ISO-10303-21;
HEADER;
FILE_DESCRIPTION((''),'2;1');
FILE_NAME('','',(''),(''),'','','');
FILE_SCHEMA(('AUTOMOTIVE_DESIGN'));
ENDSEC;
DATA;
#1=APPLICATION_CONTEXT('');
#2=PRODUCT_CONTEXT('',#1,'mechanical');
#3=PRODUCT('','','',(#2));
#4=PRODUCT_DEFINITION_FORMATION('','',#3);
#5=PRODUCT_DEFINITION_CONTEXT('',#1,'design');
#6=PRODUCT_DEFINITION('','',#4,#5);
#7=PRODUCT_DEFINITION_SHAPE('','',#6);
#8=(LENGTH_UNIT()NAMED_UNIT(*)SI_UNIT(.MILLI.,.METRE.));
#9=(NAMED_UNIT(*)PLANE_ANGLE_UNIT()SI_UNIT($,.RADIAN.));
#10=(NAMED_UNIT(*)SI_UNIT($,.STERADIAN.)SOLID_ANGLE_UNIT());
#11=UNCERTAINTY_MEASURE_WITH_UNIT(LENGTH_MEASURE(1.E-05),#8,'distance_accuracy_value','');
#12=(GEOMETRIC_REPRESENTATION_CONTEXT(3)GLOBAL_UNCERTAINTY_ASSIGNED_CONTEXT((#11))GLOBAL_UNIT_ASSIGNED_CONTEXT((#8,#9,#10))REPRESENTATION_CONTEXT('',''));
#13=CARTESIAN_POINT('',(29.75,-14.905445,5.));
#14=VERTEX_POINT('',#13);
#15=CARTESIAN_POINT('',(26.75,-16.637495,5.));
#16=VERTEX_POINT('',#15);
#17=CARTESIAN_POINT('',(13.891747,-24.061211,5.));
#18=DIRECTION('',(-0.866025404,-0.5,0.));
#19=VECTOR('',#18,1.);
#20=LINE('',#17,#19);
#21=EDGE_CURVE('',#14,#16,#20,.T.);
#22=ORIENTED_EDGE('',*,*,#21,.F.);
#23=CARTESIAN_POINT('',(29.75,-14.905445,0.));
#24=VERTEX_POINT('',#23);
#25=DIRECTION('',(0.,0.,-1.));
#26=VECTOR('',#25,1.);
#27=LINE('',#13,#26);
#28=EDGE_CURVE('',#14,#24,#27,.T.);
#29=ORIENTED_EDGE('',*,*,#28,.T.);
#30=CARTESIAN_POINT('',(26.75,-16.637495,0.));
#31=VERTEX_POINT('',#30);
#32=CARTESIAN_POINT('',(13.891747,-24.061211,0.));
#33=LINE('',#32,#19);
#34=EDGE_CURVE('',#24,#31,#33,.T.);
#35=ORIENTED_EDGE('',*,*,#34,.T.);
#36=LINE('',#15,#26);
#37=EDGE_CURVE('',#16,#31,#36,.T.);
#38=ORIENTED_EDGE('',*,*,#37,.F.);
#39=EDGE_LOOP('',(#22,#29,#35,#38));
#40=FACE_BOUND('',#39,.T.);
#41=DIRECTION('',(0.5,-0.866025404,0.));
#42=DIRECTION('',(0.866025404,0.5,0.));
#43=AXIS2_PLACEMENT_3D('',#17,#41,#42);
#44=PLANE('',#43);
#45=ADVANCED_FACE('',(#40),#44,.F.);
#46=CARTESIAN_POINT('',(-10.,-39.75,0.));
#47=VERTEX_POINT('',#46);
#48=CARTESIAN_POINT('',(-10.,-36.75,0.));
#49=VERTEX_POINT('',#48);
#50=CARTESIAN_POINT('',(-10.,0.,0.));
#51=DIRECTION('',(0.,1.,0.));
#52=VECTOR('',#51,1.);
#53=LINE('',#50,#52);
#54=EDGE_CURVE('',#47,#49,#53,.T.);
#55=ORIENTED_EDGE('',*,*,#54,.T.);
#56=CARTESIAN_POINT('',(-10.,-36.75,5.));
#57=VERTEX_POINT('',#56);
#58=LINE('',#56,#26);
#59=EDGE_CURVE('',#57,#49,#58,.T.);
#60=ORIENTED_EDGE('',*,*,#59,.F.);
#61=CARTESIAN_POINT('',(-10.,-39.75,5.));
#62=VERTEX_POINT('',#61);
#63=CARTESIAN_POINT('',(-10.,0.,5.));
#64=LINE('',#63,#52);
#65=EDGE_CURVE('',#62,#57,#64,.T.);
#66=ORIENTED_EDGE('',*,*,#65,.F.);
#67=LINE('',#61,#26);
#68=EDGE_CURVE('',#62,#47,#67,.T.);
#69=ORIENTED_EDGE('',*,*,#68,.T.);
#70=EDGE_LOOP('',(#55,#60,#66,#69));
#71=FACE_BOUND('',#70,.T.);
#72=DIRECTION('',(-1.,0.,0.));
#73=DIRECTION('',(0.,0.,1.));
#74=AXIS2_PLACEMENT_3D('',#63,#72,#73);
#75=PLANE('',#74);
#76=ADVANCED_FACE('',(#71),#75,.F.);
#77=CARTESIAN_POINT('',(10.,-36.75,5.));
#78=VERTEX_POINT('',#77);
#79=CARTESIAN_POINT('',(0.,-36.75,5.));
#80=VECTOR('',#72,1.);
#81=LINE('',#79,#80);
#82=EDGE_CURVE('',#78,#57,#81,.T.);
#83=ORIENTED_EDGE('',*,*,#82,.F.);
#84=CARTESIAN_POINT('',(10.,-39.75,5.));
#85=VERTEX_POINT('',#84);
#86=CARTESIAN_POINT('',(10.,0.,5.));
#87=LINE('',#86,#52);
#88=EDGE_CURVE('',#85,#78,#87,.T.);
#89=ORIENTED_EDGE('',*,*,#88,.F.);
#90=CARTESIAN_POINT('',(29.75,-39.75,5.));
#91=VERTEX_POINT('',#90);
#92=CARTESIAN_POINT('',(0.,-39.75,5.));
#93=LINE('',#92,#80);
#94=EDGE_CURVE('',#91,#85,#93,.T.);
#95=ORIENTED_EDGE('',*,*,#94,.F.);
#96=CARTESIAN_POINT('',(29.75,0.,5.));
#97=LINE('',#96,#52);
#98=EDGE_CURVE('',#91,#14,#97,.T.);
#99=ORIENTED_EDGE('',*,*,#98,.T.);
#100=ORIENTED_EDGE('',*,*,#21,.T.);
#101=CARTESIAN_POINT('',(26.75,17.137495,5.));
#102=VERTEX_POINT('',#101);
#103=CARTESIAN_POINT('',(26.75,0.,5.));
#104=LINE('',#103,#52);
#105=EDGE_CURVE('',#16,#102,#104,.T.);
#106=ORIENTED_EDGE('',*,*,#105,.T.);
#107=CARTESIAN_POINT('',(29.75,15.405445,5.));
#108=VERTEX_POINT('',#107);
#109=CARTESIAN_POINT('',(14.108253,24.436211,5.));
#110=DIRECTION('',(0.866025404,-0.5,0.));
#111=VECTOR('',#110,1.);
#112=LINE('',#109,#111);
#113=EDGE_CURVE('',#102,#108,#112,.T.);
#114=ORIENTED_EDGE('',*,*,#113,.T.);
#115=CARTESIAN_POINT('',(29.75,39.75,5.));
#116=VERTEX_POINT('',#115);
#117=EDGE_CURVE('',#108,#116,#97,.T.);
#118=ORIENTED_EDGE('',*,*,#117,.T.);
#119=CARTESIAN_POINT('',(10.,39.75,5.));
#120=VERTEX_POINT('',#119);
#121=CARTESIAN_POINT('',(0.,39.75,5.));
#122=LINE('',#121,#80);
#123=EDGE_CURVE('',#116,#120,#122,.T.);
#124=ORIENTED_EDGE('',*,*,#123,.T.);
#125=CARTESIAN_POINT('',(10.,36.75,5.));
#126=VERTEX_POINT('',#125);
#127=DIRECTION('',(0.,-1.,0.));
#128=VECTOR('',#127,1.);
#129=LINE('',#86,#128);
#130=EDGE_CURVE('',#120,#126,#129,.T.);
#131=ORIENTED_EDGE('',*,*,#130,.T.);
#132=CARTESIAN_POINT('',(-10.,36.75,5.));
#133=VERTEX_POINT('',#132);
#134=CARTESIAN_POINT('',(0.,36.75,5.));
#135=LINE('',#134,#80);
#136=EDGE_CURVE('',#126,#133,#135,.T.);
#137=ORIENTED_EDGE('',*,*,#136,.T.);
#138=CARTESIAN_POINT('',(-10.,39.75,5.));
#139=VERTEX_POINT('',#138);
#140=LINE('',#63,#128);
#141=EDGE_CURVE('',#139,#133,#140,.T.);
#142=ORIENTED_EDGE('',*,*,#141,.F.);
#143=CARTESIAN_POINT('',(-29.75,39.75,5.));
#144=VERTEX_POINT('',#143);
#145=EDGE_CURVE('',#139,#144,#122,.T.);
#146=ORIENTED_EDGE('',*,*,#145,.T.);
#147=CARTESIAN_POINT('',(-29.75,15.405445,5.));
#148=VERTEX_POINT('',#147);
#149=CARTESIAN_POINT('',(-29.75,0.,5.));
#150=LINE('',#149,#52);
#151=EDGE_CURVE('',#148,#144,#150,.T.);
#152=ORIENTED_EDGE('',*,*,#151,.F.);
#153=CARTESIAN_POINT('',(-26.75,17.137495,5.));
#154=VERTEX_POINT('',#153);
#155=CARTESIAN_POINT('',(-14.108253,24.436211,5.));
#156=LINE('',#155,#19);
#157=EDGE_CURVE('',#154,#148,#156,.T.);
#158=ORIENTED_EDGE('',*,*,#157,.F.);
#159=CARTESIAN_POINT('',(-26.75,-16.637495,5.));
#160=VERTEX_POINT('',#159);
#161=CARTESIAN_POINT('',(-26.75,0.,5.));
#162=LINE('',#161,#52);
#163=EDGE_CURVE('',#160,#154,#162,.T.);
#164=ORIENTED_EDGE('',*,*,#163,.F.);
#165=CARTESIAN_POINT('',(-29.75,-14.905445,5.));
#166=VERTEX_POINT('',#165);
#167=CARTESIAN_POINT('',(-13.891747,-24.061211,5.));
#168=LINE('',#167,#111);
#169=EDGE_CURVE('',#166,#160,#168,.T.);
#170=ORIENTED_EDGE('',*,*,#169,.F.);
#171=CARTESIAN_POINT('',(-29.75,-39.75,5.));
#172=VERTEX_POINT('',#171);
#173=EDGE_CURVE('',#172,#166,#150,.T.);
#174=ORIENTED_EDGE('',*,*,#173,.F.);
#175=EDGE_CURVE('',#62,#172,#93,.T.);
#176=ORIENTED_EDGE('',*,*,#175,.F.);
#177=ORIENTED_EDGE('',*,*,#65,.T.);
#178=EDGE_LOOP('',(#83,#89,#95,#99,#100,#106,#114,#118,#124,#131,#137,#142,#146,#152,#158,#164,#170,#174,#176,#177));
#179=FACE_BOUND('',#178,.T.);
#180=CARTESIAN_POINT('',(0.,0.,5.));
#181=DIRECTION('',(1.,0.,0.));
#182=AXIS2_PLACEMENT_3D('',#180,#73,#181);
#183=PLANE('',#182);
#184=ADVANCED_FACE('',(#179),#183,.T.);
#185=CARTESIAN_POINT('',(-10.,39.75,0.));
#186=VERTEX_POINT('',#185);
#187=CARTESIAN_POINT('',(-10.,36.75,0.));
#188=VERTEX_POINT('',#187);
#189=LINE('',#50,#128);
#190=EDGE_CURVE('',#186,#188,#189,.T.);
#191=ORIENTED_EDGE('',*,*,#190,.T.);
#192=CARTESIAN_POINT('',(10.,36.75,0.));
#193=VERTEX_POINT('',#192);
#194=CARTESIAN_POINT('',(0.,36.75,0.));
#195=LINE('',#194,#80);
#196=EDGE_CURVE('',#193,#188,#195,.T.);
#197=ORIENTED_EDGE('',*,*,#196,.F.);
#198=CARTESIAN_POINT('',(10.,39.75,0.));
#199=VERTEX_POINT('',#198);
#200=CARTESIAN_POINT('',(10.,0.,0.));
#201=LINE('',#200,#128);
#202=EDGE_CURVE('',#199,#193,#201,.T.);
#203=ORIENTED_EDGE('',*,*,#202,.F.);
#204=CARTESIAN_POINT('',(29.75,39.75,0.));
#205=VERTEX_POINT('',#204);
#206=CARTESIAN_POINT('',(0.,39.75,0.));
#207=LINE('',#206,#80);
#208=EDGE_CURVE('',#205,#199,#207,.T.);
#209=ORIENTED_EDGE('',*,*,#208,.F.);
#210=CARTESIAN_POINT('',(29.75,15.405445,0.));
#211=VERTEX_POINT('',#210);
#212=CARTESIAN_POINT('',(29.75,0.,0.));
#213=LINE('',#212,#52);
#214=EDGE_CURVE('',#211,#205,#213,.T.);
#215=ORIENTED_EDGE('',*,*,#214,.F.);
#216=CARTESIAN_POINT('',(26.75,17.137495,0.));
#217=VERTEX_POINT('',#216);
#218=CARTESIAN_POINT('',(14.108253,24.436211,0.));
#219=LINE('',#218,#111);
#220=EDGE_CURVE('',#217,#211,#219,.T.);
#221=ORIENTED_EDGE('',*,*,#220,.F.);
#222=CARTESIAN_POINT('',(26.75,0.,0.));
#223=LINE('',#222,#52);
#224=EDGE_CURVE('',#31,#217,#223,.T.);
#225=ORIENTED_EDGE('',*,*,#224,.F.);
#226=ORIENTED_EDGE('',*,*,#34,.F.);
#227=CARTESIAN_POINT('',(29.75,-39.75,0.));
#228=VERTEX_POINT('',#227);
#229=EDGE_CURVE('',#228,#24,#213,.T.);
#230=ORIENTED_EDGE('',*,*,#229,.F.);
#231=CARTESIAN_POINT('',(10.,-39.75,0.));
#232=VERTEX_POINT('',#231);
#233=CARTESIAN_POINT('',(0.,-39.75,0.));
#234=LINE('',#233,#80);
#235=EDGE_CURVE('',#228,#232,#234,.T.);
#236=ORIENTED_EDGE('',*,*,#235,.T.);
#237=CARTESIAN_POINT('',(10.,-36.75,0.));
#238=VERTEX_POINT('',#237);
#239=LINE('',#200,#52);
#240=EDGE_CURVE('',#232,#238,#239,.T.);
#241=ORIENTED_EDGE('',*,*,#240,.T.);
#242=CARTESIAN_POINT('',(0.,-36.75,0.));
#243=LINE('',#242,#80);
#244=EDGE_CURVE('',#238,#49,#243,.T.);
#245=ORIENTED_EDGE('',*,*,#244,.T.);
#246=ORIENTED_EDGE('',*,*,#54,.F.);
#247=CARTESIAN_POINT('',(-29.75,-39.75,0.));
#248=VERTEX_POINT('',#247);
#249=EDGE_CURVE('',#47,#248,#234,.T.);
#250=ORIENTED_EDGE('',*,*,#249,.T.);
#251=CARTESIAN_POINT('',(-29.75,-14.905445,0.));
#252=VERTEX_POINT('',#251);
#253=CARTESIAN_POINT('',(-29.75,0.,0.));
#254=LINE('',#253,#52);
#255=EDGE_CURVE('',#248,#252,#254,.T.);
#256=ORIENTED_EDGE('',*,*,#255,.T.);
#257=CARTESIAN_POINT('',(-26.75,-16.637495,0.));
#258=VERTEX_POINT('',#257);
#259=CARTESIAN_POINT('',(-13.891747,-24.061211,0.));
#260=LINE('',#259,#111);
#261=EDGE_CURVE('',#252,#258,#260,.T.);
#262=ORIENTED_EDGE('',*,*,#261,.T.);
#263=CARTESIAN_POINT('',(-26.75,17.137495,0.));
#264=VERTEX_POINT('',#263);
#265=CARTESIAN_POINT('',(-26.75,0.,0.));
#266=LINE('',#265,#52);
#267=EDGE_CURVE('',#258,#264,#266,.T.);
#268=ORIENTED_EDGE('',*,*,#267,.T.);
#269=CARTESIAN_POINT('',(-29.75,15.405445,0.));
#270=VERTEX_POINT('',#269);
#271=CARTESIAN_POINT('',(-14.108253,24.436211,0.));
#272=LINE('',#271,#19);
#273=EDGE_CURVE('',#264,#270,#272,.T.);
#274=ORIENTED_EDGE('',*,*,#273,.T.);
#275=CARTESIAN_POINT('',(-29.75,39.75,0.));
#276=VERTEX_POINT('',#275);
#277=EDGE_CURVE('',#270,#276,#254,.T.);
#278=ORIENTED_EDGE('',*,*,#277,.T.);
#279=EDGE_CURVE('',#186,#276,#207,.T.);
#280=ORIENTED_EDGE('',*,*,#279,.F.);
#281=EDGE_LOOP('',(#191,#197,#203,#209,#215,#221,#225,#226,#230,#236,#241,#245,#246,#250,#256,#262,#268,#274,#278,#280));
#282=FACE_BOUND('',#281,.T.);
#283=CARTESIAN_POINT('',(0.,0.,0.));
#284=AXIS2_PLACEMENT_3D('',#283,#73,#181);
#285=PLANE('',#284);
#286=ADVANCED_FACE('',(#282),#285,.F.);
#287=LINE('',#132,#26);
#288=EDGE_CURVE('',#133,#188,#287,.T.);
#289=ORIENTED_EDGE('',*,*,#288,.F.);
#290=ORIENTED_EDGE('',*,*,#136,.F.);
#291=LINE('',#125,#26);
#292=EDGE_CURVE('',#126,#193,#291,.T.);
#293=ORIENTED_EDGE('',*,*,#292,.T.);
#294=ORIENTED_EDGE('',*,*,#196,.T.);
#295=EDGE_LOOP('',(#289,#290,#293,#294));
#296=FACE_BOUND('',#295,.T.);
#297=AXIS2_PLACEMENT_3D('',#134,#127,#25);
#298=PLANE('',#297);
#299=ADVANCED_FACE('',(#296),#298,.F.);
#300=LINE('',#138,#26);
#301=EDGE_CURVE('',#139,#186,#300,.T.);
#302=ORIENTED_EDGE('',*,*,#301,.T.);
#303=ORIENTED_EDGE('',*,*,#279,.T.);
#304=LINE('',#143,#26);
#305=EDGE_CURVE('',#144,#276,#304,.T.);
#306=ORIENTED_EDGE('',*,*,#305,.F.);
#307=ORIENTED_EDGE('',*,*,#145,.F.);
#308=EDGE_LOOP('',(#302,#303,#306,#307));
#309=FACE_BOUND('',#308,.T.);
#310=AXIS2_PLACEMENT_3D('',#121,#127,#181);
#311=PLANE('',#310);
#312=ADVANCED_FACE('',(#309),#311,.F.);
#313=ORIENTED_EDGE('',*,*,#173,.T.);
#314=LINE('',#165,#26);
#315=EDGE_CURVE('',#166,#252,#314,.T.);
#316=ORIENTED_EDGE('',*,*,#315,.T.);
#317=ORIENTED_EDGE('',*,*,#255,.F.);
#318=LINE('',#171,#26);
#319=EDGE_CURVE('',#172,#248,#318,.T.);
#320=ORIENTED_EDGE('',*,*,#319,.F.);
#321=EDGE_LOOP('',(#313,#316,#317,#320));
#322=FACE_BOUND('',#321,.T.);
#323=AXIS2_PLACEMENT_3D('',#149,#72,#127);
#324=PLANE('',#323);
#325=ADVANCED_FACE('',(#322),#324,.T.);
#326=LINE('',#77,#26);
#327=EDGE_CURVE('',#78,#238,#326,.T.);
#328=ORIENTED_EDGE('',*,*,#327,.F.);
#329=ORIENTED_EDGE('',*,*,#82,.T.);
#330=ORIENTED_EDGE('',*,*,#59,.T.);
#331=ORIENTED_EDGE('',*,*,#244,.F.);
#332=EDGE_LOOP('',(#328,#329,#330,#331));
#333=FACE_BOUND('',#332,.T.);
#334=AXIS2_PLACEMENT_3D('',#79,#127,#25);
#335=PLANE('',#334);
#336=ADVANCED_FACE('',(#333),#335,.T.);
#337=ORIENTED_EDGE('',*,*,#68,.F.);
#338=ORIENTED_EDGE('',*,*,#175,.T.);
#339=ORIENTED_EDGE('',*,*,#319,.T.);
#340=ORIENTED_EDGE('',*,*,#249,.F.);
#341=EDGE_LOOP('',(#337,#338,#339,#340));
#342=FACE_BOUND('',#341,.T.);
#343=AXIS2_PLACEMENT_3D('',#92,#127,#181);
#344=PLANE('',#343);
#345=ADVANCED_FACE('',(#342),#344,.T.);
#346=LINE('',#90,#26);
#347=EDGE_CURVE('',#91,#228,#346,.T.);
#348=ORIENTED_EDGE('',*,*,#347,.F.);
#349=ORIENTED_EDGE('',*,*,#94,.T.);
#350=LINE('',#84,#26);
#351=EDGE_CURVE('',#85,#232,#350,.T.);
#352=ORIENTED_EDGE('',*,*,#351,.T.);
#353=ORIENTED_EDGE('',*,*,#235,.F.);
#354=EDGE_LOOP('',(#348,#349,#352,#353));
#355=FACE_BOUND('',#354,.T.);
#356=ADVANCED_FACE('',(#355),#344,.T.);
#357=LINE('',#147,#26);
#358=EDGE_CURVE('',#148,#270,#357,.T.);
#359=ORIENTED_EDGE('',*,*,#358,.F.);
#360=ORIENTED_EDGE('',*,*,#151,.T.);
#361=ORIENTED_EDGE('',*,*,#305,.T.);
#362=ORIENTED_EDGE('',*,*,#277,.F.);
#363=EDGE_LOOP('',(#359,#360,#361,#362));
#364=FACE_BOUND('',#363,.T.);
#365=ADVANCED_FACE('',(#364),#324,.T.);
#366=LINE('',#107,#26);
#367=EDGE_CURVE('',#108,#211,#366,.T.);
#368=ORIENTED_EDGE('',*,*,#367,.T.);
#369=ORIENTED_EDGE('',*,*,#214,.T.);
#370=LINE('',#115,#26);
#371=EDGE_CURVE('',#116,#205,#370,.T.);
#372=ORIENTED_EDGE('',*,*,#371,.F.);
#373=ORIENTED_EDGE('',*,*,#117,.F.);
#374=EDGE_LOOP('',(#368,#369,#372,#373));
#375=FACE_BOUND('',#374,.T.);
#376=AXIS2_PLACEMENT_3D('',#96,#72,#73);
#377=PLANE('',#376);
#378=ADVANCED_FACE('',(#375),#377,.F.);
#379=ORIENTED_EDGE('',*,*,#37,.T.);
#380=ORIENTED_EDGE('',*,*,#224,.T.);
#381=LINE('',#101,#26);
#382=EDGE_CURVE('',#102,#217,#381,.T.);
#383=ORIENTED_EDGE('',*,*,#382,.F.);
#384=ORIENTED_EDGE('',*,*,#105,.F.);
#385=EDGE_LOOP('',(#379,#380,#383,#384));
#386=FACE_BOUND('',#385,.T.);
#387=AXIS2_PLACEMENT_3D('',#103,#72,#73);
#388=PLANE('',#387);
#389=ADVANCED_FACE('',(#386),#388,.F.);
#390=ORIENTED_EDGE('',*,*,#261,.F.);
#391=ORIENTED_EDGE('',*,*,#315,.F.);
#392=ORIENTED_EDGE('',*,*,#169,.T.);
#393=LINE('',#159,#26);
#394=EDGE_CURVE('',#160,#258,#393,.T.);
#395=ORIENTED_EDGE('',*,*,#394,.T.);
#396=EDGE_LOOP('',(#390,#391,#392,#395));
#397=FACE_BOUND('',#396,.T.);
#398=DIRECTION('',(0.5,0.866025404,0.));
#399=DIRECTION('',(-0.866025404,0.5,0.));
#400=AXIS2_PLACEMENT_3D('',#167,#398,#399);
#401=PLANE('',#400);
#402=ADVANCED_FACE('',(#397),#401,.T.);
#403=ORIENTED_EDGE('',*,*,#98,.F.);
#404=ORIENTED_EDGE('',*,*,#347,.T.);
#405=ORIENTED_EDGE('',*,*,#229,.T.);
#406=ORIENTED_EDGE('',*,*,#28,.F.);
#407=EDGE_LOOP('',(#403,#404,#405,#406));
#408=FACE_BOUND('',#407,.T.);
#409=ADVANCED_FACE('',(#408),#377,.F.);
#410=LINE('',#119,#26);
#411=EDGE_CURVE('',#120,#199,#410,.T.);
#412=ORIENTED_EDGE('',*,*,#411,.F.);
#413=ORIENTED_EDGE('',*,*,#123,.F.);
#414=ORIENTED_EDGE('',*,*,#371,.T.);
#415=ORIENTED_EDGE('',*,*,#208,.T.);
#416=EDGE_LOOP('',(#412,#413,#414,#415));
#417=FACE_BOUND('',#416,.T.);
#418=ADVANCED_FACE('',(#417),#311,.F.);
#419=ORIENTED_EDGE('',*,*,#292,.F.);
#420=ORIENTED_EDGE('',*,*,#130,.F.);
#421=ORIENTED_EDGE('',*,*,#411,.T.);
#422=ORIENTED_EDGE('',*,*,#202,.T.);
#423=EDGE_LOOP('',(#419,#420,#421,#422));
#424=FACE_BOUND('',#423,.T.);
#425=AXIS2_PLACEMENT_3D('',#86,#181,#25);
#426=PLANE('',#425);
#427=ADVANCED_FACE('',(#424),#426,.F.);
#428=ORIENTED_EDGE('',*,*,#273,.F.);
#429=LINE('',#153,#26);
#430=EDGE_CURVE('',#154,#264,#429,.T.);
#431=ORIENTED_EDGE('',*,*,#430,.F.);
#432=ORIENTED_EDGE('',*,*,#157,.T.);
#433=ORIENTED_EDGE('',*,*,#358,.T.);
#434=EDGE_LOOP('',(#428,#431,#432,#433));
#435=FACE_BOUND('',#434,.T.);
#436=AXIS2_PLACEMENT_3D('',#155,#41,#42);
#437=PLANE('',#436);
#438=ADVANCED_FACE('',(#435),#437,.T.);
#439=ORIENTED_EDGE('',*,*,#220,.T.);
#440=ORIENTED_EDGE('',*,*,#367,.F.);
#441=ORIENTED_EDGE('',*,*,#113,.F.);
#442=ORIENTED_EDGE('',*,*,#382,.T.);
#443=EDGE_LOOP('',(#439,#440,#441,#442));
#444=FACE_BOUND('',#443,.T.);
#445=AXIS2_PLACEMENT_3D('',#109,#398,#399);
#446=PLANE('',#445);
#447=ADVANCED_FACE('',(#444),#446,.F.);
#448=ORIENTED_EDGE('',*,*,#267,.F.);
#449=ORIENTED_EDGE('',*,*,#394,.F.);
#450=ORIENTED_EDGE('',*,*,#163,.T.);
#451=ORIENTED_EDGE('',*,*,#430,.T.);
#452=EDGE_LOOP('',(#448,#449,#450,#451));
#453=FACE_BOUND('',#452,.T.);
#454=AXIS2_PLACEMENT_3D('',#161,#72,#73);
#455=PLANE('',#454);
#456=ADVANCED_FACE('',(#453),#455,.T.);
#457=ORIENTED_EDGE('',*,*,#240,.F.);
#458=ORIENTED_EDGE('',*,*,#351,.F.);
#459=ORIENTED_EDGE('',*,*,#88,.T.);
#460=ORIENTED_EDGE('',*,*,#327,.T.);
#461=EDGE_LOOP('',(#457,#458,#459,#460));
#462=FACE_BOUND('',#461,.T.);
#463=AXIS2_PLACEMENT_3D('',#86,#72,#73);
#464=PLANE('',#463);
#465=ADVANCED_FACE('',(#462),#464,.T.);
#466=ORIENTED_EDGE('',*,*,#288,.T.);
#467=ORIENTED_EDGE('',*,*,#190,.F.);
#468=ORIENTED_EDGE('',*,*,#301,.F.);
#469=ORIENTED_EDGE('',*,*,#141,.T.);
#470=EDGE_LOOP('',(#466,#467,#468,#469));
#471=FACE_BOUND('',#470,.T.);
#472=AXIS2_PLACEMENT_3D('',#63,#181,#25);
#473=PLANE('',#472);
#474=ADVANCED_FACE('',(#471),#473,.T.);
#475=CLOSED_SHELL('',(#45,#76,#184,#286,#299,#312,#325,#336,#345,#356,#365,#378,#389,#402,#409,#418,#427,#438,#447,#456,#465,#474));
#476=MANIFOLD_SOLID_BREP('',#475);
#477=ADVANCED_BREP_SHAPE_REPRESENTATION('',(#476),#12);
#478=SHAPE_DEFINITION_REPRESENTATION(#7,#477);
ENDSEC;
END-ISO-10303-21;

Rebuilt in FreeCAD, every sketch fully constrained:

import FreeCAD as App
import Part
import Sketcher
Q = App.Units.Quantity


def add_polygon(sketch, points):
    """Adds a closed chain of lines whose ends are joined by coincident constraints."""
    first, n = sketch.GeometryCount, len(points)
    for a, b in zip(points, points[1:] + points[:1]):
        sketch.addGeometry(Part.LineSegment(App.Vector(*a, 0), App.Vector(*b, 0)), False)
    for i in range(n):
        sketch.addConstraint(Sketcher.Constraint("Coincident", first + i, 2, first + (i + 1) % n, 1))

doc = App.newDocument("Part")
params = doc.addObject("Spreadsheet::Sheet", "Params")
for row, (alias, value) in enumerate([
    ("sketch1_width", "20 mm"),
    ("sketch1_height", "3 mm"),
    ("sketch1_width2", "19.75 mm"),
    ("pad1_length", "5 mm"),
], start=1):
    params.set(f"A{row}", alias)
    params.set(f"B{row}", "=" + value)
    params.setAlias(f"B{row}", alias)

body = doc.addObject("PartDesign::Body", "Body")

sketch1 = doc.addObject("Sketcher::SketchObject", "Sketch")
body.addObject(sketch1)
sketch1.AttachmentSupport = (doc.XY_Plane, [""])
sketch1.MapMode = "FlatFace"
add_polygon(sketch1, [(29.75, -39.75), (29.75, -14.905445), (26.75, -16.637495), (26.75, 17.137495), (29.75, 15.405445), (29.75, 39.75), (10, 39.75), (10, 36.75), (-10, 36.75), (-10, 39.75), (-29.75, 39.75), (-29.75, 15.405445), (-26.75, 17.137495), (-26.75, -16.637495), (-29.75, -14.905445), (-29.75, -39.75), (-10, -39.75), (-10, -36.75), (10, -36.75), (10, -39.75)])
sketch1.addConstraint([
    Sketcher.Constraint("Vertical", 0),
    Sketcher.Constraint("Vertical", 2),
    Sketcher.Constraint("Vertical", 4),
    Sketcher.Constraint("Horizontal", 5),
    Sketcher.Constraint("Vertical", 6),
    Sketcher.Constraint("Horizontal", 7),
    Sketcher.Constraint("Vertical", 8),
    Sketcher.Constraint("Horizontal", 9),
    Sketcher.Constraint("Vertical", 10),
    Sketcher.Constraint("Vertical", 12),
    Sketcher.Constraint("Vertical", 14),
    Sketcher.Constraint("Horizontal", 15),
    Sketcher.Constraint("Vertical", 16),
    Sketcher.Constraint("Horizontal", 17),
    Sketcher.Constraint("Vertical", 18),
    Sketcher.Constraint("Horizontal", 19),
    Sketcher.Constraint("Symmetric", 4, 2, 14, 2, -1, 1),
    Sketcher.Constraint("Symmetric", 6, 2, 16, 2, -1, 1),
    Sketcher.Constraint("Symmetric", 8, 2, 18, 2, -1, 1),
    Sketcher.Constraint("Symmetric", 5, 2, 8, 2, -2),
    Sketcher.Constraint("Symmetric", 3, 2, 10, 2, -2),
    Sketcher.Constraint("Symmetric", 2, 2, 11, 2, -2),
    Sketcher.Constraint("Symmetric", 0, 2, 13, 2, -2),
    Sketcher.Constraint("Parallel", 1, 11),
    Sketcher.Constraint("Parallel", 3, 13),
    Sketcher.Constraint("DistanceX", 7, 2, 7, 1, Q("20 mm")),
    Sketcher.Constraint("DistanceY", 6, 2, 6, 1, Q("3 mm")),
    Sketcher.Constraint("Angle", 1, Q("-150 deg")),
    Sketcher.Constraint("DistanceX", 1, 2, 0, 2, Q("3 mm")),
    Sketcher.Constraint("DistanceX", 5, 2, 5, 1, Q("19.75 mm")),
    Sketcher.Constraint("DistanceY", -1, 1, 4, 2, Q("39.75 mm")),
    Sketcher.Constraint("DistanceY", 2, 1, 2, 2, Q("33.774991 mm")),
    Sketcher.Constraint("DistanceY", 0, 1, 0, 2, Q("24.844555 mm")),
])
sketch1.setExpression("Constraints[45]", "Params.sketch1_width")
sketch1.setExpression("Constraints[46]", "Params.sketch1_height")
sketch1.setExpression("Constraints[49]", "Params.sketch1_width2")
pad1 = doc.addObject("PartDesign::Pad", "Pad")
body.addObject(pad1)
pad1.Profile = sketch1
pad1.setExpression("Length", "Params.pad1_length")

doc.recompute()
